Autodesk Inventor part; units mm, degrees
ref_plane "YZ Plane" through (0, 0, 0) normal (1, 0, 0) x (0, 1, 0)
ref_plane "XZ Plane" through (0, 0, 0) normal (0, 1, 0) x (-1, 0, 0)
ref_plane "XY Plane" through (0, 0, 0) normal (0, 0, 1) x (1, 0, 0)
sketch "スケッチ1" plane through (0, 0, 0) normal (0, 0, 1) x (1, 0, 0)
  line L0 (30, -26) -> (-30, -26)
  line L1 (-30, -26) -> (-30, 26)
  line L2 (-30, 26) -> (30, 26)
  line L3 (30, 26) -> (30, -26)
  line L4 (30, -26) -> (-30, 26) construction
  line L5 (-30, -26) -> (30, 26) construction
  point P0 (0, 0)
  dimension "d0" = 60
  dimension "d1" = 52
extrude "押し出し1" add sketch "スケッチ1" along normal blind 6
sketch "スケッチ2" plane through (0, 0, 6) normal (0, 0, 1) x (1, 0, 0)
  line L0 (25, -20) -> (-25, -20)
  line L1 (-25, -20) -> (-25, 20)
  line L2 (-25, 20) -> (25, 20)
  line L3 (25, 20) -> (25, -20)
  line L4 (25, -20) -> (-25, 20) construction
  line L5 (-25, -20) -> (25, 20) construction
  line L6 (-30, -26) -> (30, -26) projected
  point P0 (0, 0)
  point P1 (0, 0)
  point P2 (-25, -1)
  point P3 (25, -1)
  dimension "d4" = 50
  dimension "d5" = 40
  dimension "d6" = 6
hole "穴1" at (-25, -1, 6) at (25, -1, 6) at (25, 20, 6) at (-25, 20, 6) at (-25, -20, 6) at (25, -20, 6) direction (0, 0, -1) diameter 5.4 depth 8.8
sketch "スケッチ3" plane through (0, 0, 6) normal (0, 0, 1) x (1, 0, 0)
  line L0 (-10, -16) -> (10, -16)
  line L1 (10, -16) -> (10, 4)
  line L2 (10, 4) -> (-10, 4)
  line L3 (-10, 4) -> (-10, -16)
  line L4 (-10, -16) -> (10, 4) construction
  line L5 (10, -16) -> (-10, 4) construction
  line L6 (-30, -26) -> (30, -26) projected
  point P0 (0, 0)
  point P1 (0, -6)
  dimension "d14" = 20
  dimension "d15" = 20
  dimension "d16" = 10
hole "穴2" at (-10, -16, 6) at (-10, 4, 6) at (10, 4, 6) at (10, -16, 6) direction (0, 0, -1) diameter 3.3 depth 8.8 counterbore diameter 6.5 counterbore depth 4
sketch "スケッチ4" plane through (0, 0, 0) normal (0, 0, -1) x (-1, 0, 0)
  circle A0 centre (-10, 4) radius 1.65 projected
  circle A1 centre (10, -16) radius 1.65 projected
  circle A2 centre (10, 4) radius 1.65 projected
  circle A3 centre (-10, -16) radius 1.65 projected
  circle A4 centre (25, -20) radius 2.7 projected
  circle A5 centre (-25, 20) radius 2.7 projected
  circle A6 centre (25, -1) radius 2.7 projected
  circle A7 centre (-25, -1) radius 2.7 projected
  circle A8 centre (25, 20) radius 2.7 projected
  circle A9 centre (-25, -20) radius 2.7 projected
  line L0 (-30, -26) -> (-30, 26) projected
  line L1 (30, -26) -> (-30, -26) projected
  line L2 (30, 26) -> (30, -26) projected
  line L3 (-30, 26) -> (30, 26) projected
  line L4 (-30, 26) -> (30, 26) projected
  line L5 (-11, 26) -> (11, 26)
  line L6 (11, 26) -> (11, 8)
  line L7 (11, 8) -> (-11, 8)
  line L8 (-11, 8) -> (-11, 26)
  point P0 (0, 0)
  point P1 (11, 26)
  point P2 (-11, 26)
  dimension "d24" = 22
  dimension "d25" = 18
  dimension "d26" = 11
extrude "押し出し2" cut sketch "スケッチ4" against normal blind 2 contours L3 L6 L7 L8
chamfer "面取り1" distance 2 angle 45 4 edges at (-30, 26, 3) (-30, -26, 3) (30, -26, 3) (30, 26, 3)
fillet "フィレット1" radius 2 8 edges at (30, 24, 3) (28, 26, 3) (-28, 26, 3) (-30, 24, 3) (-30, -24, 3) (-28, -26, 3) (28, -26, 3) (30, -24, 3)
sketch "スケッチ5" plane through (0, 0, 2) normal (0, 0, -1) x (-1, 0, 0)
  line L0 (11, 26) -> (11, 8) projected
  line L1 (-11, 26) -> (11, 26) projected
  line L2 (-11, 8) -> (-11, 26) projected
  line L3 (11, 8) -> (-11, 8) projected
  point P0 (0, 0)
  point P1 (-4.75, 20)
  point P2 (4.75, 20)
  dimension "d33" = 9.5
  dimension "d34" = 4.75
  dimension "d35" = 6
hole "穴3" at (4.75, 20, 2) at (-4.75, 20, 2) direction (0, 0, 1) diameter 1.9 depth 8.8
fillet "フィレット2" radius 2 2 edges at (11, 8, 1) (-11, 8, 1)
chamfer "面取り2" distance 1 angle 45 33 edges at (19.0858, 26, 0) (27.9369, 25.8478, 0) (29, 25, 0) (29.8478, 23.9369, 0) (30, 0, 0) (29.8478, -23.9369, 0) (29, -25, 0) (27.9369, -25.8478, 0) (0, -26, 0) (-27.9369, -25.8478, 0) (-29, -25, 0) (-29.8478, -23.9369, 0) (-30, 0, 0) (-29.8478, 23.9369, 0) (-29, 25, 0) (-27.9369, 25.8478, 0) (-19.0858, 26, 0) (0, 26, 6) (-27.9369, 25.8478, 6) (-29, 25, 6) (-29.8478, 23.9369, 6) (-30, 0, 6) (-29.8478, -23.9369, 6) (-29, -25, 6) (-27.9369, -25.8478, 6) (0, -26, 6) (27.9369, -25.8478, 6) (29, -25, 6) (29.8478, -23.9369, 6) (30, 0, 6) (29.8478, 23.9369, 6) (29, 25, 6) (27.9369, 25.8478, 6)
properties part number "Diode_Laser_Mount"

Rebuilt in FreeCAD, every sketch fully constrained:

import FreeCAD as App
import Part
import Sketcher

V = App.Vector


def edges_at(feature, points):
    """Names of the edges that pass closest to the given points."""
    edges = feature.Shape.Edges
    near = lambda p: min(range(len(edges)), key=lambda i: edges[i].distToShape(Part.Vertex(*p))[0])
    return sorted({f"Edge{near(p) + 1}" for p in points})


def add_polygon(sketch, points):
    """Adds a closed chain of lines whose ends are joined by coincident constraints."""
    first, n = sketch.GeometryCount, len(points)
    for a, b in zip(points, points[1:] + points[:1]):
        sketch.addGeometry(Part.LineSegment(App.Vector(*a, 0), App.Vector(*b, 0)), False)
    for i in range(n):
        sketch.addConstraint(Sketcher.Constraint("Coincident", first + i, 2, first + (i + 1) % n, 1))

doc = App.newDocument("Part")
body = doc.addObject("PartDesign::Body", "Body")

sketch1 = body.newObject("Sketcher::SketchObject", "Sketch")
sketch1.AttachmentSupport = (doc.getObject("XY_Plane"), [""])
sketch1.MapMode = "FlatFace"
add_polygon(sketch1, [(-30, -26), (30, -26), (30, 26), (-30, 26)])
sketch1.addConstraint([
    Sketcher.Constraint("Horizontal", 0),
    Sketcher.Constraint("Vertical", 1),
    Sketcher.Constraint("Horizontal", 2),
    Sketcher.Constraint("Vertical", 3),
    Sketcher.Constraint("Symmetric", 0, 2, 2, 2, -1, 1),
    Sketcher.Constraint("DistanceX", 0, 1, 0, 2, 60.0),
    Sketcher.Constraint("DistanceY", 1, 1, 1, 2, 52.0),
])
pad1 = body.newObject("PartDesign::Pad", "Pad")
pad1.Profile = sketch1
pad1.Length = 6

sketch2 = body.newObject("Sketcher::SketchObject", "Sketch001")
sketch2.AttachmentSupport = (doc.getObject("XY_Plane"), [""])
sketch2.MapMode = "FlatFace"
sketch2.AttachmentOffset = App.Placement(V(0, 0, 6), App.Rotation())
sketch2.addGeometry([
    Part.Circle(V(-25, -1, 0), V(0, 0, 1), 2.7),
    Part.Circle(V(25, -1, 0), V(0, 0, 1), 2.7),
    Part.Circle(V(25, 20, 0), V(0, 0, 1), 2.7),
    Part.Circle(V(-25, 20, 0), V(0, 0, 1), 2.7),
    Part.Circle(V(-25, -20, 0), V(0, 0, 1), 2.7),
    Part.Circle(V(25, -20, 0), V(0, 0, 1), 2.7),
], False)
sketch2.addConstraint([
    Sketcher.Constraint("Equal", 0, 1),
    Sketcher.Constraint("Equal", 1, 2),
    Sketcher.Constraint("Equal", 2, 3),
    Sketcher.Constraint("Equal", 3, 4),
    Sketcher.Constraint("Equal", 4, 5),
    Sketcher.Constraint("Symmetric", 2, 3, 4, 3, -1, 1),
    Sketcher.Constraint("Symmetric", 3, 3, 5, 3, -1, 1),
    Sketcher.Constraint("Symmetric", 0, 3, 1, 3, -2),
    Sketcher.Constraint("Symmetric", 2, 3, 3, 3, -2),
    Sketcher.Constraint("Vertical", 1, 3, 2, 3),
    Sketcher.Constraint("Diameter", 0, 5.4),
    Sketcher.Constraint("DistanceX", 0, 3, -1, 1, 25.0),
    Sketcher.Constraint("DistanceY", 0, 3, -1, 1, 1.0),
    Sketcher.Constraint("DistanceY", -1, 1, 2, 3, 20.0),
])
doc.recompute()
hole = body.newObject("PartDesign::Hole", "Hole")
hole.Profile = sketch2
hole.ThreadType = "None"
hole.Diameter = 5.4
hole.DepthType = "Dimension"
hole.Depth = 8.8
hole.DrillPoint = "Flat"

sketch3 = body.newObject("Sketcher::SketchObject", "Sketch002")
sketch3.AttachmentSupport = (doc.getObject("XY_Plane"), [""])
sketch3.MapMode = "FlatFace"
sketch3.AttachmentOffset = App.Placement(V(0, 0, 6), App.Rotation())
sketch3.addGeometry([
    Part.Circle(V(-10, -16, 0), V(0, 0, 1), 1.6),
    Part.Circle(V(-10, 4, 0), V(0, 0, 1), 1.6),
    Part.Circle(V(10, 4, 0), V(0, 0, 1), 1.6),
    Part.Circle(V(10, -16, 0), V(0, 0, 1), 1.6),
], False)
sketch3.addConstraint([
    Sketcher.Constraint("Equal", 0, 1),
    Sketcher.Constraint("Equal", 1, 2),
    Sketcher.Constraint("Equal", 2, 3),
    Sketcher.Constraint("Symmetric", 1, 3, 2, 3, -2),
    Sketcher.Constraint("Symmetric", 0, 3, 3, 3, -2),
    Sketcher.Constraint("Vertical", 0, 3, 1, 3),
    Sketcher.Constraint("Diameter", 0, 3.3),
    Sketcher.Constraint("DistanceX", 0, 3, -1, 1, 10.0),
    Sketcher.Constraint("DistanceY", 0, 3, -1, 1, 16.0),
    Sketcher.Constraint("DistanceY", -1, 1, 1, 3, 4.0),
])
doc.recompute()
hole2 = body.newObject("PartDesign::Hole", "Hole001")
hole2.Profile = sketch3
hole2.ThreadType = "None"
hole2.Diameter = 3.3
hole2.DepthType = "Dimension"
hole2.Depth = 8.8
hole2.DrillPoint = "Flat"
hole2.HoleCutType = "Counterbore"
hole2.HoleCutDiameter = 6.5
hole2.HoleCutDepth = 4

sketch4 = body.newObject("Sketcher::SketchObject", "Sketch003")
sketch4.AttachmentSupport = (doc.getObject("XY_Plane"), [""])
sketch4.MapMode = "FlatFace"
add_polygon(sketch4, [(-11, 26), (11, 26), (11, 8), (-11, 8)])
sketch4.addConstraint([
    Sketcher.Constraint("Horizontal", 0),
    Sketcher.Constraint("Vertical", 1),
    Sketcher.Constraint("Horizontal", 2),
    Sketcher.Constraint("Vertical", 3),
    Sketcher.Constraint("DistanceX", 0, 1, 0, 2, 22.0),
    Sketcher.Constraint("DistanceY", 1, 2, 1, 1, 18.0),
    Sketcher.Constraint("DistanceX", -1, 1, 0, 2, 11.0),
    Sketcher.Constraint("DistanceY", -1, 1, 0, 2, 26.0),
])
pocket1 = body.newObject("PartDesign::Pocket", "Pocket")
pocket1.Profile = sketch4
pocket1.Length = 2
pocket1.Reversed = True
doc.recompute()

chamfer = body.newObject("PartDesign::Chamfer", "Chamfer")
chamfer.Base = (pocket1, edges_at(pocket1, [
    (-30, 26, 3),
    (-30, -26, 3),
    (30, -26, 3),
    (30, 26, 3),
]))
chamfer.Size = 2
doc.recompute()

fillet = body.newObject("PartDesign::Fillet", "Fillet")
fillet.Base = (chamfer, edges_at(chamfer, [
    (30, 24, 3),
    (28, 26, 3),
    (-28, 26, 3),
    (-30, 24, 3),
    (-30, -24, 3),
    (-28, -26, 3),
    (28, -26, 3),
    (30, -24, 3),
]))
fillet.Radius = 2

sketch5 = body.newObject("Sketcher::SketchObject", "Sketch004")
sketch5.AttachmentSupport = (doc.getObject("XY_Plane"), [""])
sketch5.MapMode = "FlatFace"
sketch5.AttachmentOffset = App.Placement(V(0, 0, 2), App.Rotation())
sketch5.addGeometry([
    Part.Circle(V(4.8, 20, 0), V(0, 0, 1), 0.9),
    Part.Circle(V(-4.8, 20, 0), V(0, 0, 1), 0.9),
], False)
sketch5.addConstraint([
    Sketcher.Constraint("Equal", 0, 1),
    Sketcher.Constraint("Symmetric", 0, 3, 1, 3, -2),
    Sketcher.Constraint("Diameter", 0, 1.9),
    Sketcher.Constraint("DistanceY", -1, 1, 0, 3, 20.0),
    Sketcher.Constraint("DistanceX", 1, 3, 0, 3, 9.5),
])
doc.recompute()
hole3 = body.newObject("PartDesign::Hole", "Hole002")
hole3.Profile = sketch5
hole3.ThreadType = "None"
hole3.Diameter = 1.9
hole3.DepthType = "Dimension"
hole3.Depth = 8.8
hole3.DrillPoint = "Flat"
hole3.Reversed = True
doc.recompute()

fillet2 = body.newObject("PartDesign::Fillet", "Fillet001")
fillet2.Base = (hole3, edges_at(hole3, [(11, 8, 1), (-11, 8, 1)]))
fillet2.Radius = 2
doc.recompute()

chamfer2 = body.newObject("PartDesign::Chamfer", "Chamfer001")
chamfer2.Base = (fillet2, edges_at(fillet2, [
    (19.086, 26, 0),
    (27.937, 25.848, 0),
    (29, 25, 0),
    (29.848, 23.937, 0),
    (30, 0, 0),
    (29.848, -23.937, 0),
    (29, -25, 0),
    (27.937, -25.848, 0),
    (0, -26, 0),
    (-27.937, -25.848, 0),
    (-29, -25, 0),
    (-29.848, -23.937, 0),
    (-30, 0, 0),
    (-29.848, 23.937, 0),
    (-29, 25, 0),
    (-27.937, 25.848, 0),
    (-19.086, 26, 0),
    (0, 26, 6),
    (-27.937, 25.848, 6),
    (-29, 25, 6),
    (-29.848, 23.937, 6),
    (-30, 0, 6),
    (-29.848, -23.937, 6),
    (-29, -25, 6),
    (-27.937, -25.848, 6),
    (0, -26, 6),
    (27.937, -25.848, 6),
    (29, -25, 6),
    (29.848, -23.937, 6),
    (30, 0, 6),
    (29.848, 23.937, 6),
    (29, 25, 6),
    (27.937, 25.848, 6),
]))
chamfer2.Size = 1

doc.recompute()
